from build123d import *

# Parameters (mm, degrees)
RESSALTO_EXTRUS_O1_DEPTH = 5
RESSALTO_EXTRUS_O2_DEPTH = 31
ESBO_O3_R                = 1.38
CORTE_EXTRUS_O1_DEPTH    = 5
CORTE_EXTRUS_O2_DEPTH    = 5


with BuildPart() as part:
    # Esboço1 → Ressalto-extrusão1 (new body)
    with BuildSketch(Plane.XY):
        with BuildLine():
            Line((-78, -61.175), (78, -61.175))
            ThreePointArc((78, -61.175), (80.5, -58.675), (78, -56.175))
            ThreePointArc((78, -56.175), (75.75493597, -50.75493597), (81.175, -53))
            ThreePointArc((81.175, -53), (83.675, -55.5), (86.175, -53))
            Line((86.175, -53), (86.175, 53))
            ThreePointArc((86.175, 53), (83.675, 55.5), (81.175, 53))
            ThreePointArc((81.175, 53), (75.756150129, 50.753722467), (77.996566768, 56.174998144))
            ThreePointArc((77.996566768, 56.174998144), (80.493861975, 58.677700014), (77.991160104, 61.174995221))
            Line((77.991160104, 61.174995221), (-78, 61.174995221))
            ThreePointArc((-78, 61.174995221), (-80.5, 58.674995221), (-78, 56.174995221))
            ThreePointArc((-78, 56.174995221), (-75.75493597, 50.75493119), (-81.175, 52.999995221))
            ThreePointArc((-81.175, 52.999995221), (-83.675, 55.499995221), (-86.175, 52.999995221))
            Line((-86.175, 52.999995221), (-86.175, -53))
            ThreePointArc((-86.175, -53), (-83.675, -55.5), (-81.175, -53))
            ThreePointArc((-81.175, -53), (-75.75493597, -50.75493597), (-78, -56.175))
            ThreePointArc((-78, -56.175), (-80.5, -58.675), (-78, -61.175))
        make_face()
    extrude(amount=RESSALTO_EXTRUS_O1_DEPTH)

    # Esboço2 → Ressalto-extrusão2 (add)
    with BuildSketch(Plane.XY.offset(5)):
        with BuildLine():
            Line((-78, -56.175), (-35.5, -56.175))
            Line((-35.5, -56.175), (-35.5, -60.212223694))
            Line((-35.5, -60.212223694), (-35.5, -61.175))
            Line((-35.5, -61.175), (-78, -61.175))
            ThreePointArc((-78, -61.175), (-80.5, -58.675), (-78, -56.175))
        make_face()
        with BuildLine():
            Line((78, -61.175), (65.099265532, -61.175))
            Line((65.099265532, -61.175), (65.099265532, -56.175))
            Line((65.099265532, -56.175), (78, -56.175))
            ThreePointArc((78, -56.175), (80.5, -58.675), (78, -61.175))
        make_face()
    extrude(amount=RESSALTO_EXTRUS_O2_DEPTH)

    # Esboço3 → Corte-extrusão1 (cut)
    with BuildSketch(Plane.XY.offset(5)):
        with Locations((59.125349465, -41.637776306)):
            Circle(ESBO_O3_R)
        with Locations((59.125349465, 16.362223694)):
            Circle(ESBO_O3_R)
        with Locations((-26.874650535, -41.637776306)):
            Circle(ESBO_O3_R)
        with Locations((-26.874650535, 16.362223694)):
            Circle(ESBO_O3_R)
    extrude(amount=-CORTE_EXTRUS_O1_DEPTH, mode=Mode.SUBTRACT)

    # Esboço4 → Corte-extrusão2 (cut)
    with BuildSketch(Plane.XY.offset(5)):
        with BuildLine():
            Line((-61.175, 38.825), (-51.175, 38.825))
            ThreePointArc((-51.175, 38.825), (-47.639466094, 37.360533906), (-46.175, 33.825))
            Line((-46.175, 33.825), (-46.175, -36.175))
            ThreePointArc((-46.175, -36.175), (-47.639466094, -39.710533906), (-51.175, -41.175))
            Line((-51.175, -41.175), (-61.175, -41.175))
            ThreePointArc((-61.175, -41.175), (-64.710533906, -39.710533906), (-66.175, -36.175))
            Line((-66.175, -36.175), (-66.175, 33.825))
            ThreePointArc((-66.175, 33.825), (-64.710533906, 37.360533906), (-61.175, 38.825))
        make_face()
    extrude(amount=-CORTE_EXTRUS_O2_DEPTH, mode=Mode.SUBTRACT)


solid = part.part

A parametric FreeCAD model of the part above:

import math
import FreeCAD as App
import Part
import Sketcher
Q = App.Units.Quantity

doc = App.newDocument("Part")
params = doc.addObject("Spreadsheet::Sheet", "Params")
for row, (alias, value) in enumerate([
    ("sketch1_radius", "2.5 mm"),
    ("sketch1_width", "156 mm"),
    ("sketch1_height", "106 mm"),
    ("pad1_length", "5 mm"),
    ("sketch2_radius", "2.5 mm"),
    ("sketch2_width", "42.5 mm"),
    ("pad2_length", "31 mm"),
    ("sketch3_diameter", "2.76 mm"),
    ("pocket1_length", "5 mm"),
    ("sketch4_radius", "5 mm"),
    ("sketch4_width", "10 mm"),
    ("sketch4_height", "70 mm"),
    ("pocket2_length", "5 mm"),
], start=1):
    params.set(f"A{row}", alias)
    params.set(f"B{row}", "=" + value)
    params.setAlias(f"B{row}", alias)

body = doc.addObject("PartDesign::Body", "Body")

sketch1 = doc.addObject("Sketcher::SketchObject", "Sketch")
body.addObject(sketch1)
sketch1.AttachmentSupport = (doc.XY_Plane, [""])
sketch1.MapMode = "FlatFace"
sketch1.addGeometry([
    Part.LineSegment(App.Vector(-78, -61.2, 0), App.Vector(78, -61.2, 0)),
    Part.ArcOfCircle(Part.Circle(App.Vector(78, -58.7, 0), App.Vector(0, 0, 1), 2.5), math.radians(-90), math.radians(90)),
    Part.ArcOfCircle(Part.Circle(App.Vector(78, -53, 0), App.Vector(0, 0, 1), 3.2), math.radians(0), math.radians(270)),
    Part.ArcOfCircle(Part.Circle(App.Vector(83.7, -53, 0), App.Vector(0, 0, 1), 2.5), math.radians(180), math.radians(360)),
    Part.LineSegment(App.Vector(86.2, -53, 0), App.Vector(86.2, 53, 0)),
    Part.ArcOfCircle(Part.Circle(App.Vector(83.7, 53, 0), App.Vector(0, 0, 1), 2.5), math.radians(0), math.radians(180)),
    Part.ArcOfCircle(Part.Circle(App.Vector(78, 53, 0), App.Vector(0, 0, 1), 3.2), math.radians(90), math.radians(360)),
    Part.ArcOfCircle(Part.Circle(App.Vector(78, 58.7, 0), App.Vector(0, 0, 1), 2.5), math.radians(-90), math.radians(90)),
    Part.LineSegment(App.Vector(78, 61.2, 0), App.Vector(-78, 61.2, 0)),
    Part.ArcOfCircle(Part.Circle(App.Vector(-78, 58.7, 0), App.Vector(0, 0, 1), 2.5), math.radians(90), math.radians(270)),
    Part.ArcOfCircle(Part.Circle(App.Vector(-78, 53, 0), App.Vector(0, 0, 1), 3.2), math.radians(180), math.radians(450)),
    Part.ArcOfCircle(Part.Circle(App.Vector(-83.7, 53, 0), App.Vector(0, 0, 1), 2.5), math.radians(0), math.radians(180)),
    Part.LineSegment(App.Vector(-86.2, 53, 0), App.Vector(-86.2, -53, 0)),
    Part.ArcOfCircle(Part.Circle(App.Vector(-83.7, -53, 0), App.Vector(0, 0, 1), 2.5), math.radians(180), math.radians(360)),
    Part.ArcOfCircle(Part.Circle(App.Vector(-78, -53, 0), App.Vector(0, 0, 1), 3.2), math.radians(-90), math.radians(180)),
    Part.ArcOfCircle(Part.Circle(App.Vector(-78, -58.7, 0), App.Vector(0, 0, 1), 2.5), math.radians(90), math.radians(270)),
], False)
sketch1.addConstraint([
    Sketcher.Constraint("Tangent", 0, 2, 1, 1),
    Sketcher.Constraint("Tangent", 1, 2, 2, 2),
    Sketcher.Constraint("Tangent", 2, 1, 3, 1),
    Sketcher.Constraint("Tangent", 3, 2, 4, 1),
    Sketcher.Constraint("Tangent", 4, 2, 5, 1),
    Sketcher.Constraint("Tangent", 5, 2, 6, 2),
    Sketcher.Constraint("Tangent", 6, 1, 7, 1),
    Sketcher.Constraint("Coincident", 7, 2, 8, 1),
    Sketcher.Constraint("Tangent", 8, 2, 9, 1),
    Sketcher.Constraint("Tangent", 9, 2, 10, 2),
    Sketcher.Constraint("Tangent", 10, 1, 11, 1),
    Sketcher.Constraint("Tangent", 11, 2, 12, 1),
    Sketcher.Constraint("Tangent", 12, 2, 13, 1),
    Sketcher.Constraint("Tangent", 13, 2, 14, 2),
    Sketcher.Constraint("Tangent", 14, 1, 15, 1),
    Sketcher.Constraint("Tangent", 15, 2, 0, 1),
    Sketcher.Constraint("Horizontal", 0),
    Sketcher.Constraint("Vertical", 4),
    Sketcher.Constraint("Horizontal", 8),
    Sketcher.Constraint("Vertical", 12),
    Sketcher.Constraint("Equal", 1, 3),
    Sketcher.Constraint("Equal", 3, 5),
    Sketcher.Constraint("Equal", 2, 6),
    Sketcher.Constraint("Equal", 5, 7),
    Sketcher.Constraint("Equal", 7, 9),
    Sketcher.Constraint("Equal", 6, 10),
    Sketcher.Constraint("Equal", 9, 11),
    Sketcher.Constraint("Equal", 11, 13),
    Sketcher.Constraint("Equal", 10, 14),
    Sketcher.Constraint("Equal", 13, 15),
    Sketcher.Constraint("Symmetric", 1, 3, 9, 3, -1, 1),
    Sketcher.Constraint("Symmetric", 3, 3, 11, 3, -1, 1),
    Sketcher.Constraint("Horizontal", 2, 3, 3, 3),
    Sketcher.Constraint("Horizontal", 5, 3, 6, 3),
    Sketcher.Constraint("Horizontal", 3, 3, 13, 3),
    Sketcher.Constraint("Vertical", 1, 3, 2, 3),
    Sketcher.Constraint("Vertical", 14, 3, 15, 3),
    Sketcher.Constraint("Radius", 1, Q("2.5 mm")),
    Sketcher.Constraint("DistanceX", 0, 1, 0, 2, Q("156 mm")),
    Sketcher.Constraint("DistanceY", 4, 1, 4, 2, Q("106 mm")),
    Sketcher.Constraint("Radius", 2, Q("3.175 mm")),
    Sketcher.Constraint("DistanceX", 8, 2, 8, 1, Q("155.99116 mm")),
    Sketcher.Constraint("DistanceX", -1, 1, 7, 3, Q("77.993863 mm")),
])
sketch1.setExpression("Constraints[37]", "Params.sketch1_radius")
sketch1.setExpression("Constraints[38]", "Params.sketch1_width")
sketch1.setExpression("Constraints[39]", "Params.sketch1_height")
pad1 = doc.addObject("PartDesign::Pad", "Pad")
body.addObject(pad1)
pad1.Profile = sketch1
pad1.setExpression("Length", "Params.pad1_length")

sketch2 = doc.addObject("Sketcher::SketchObject", "Sketch001")
body.addObject(sketch2)
sketch2.AttachmentSupport = (doc.XY_Plane, [""])
sketch2.MapMode = "FlatFace"
sketch2.AttachmentOffset = App.Placement(App.Vector(0, 0, 5), App.Rotation())
sketch2.addGeometry([
    Part.LineSegment(App.Vector(-35.5, -56.2, 0), App.Vector(-78, -56.2, 0)),
    Part.ArcOfCircle(Part.Circle(App.Vector(-78, -58.7, 0), App.Vector(0, 0, 1), 2.5), math.radians(90), math.radians(270)),
    Part.LineSegment(App.Vector(-78, -61.2, 0), App.Vector(-35.5, -61.2, 0)),
    Part.LineSegment(App.Vector(-35.5, -61.2, 0), App.Vector(-35.5, -56.2, 0)),
    Part.LineSegment(App.Vector(65.1, -61.2, 0), App.Vector(78, -61.2, 0)),
    Part.ArcOfCircle(Part.Circle(App.Vector(78, -58.7, 0), App.Vector(0, 0, 1), 2.5), math.radians(-90), math.radians(90)),
    Part.LineSegment(App.Vector(78, -56.2, 0), App.Vector(65.1, -56.2, 0)),
    Part.LineSegment(App.Vector(65.1, -56.2, 0), App.Vector(65.1, -61.2, 0)),
], False)
sketch2.addConstraint([
    Sketcher.Constraint("Tangent", 0, 2, 1, 1),
    Sketcher.Constraint("Tangent", 1, 2, 2, 1),
    Sketcher.Constraint("Coincident", 2, 2, 3, 1),
    Sketcher.Constraint("Coincident", 3, 2, 0, 1),
    Sketcher.Constraint("Tangent", 4, 2, 5, 1),
    Sketcher.Constraint("Tangent", 5, 2, 6, 1),
    Sketcher.Constraint("Coincident", 6, 2, 7, 1),
    Sketcher.Constraint("Coincident", 7, 2, 4, 1),
    Sketcher.Constraint("Horizontal", 0),
    Sketcher.Constraint("Horizontal", 2),
    Sketcher.Constraint("Vertical", 3),
    Sketcher.Constraint("Horizontal", 4),
    Sketcher.Constraint("Horizontal", 6),
    Sketcher.Constraint("Vertical", 7),
    Sketcher.Constraint("Equal", 1, 5),
    Sketcher.Constraint("Symmetric", 1, 3, 5, 3, -2),
    Sketcher.Constraint("Radius", 1, Q("2.5 mm")),
    Sketcher.Constraint("DistanceX", 0, 2, 0, 1, Q("42.5 mm")),
    Sketcher.Constraint("DistanceX", 1, 3, -1, 1, Q("78 mm")),
    Sketcher.Constraint("DistanceY", 1, 3, -1, 1, Q("58.675 mm")),
    Sketcher.Constraint("DistanceX", 4, 1, 4, 2, Q("12.900734 mm")),
])
sketch2.setExpression("Constraints[16]", "Params.sketch2_radius")
sketch2.setExpression("Constraints[17]", "Params.sketch2_width")
pad2 = doc.addObject("PartDesign::Pad", "Pad001")
body.addObject(pad2)
pad2.Profile = sketch2
pad2.setExpression("Length", "Params.pad2_length")

sketch3 = doc.addObject("Sketcher::SketchObject", "Sketch002")
body.addObject(sketch3)
sketch3.AttachmentSupport = (doc.XY_Plane, [""])
sketch3.MapMode = "FlatFace"
sketch3.AttachmentOffset = App.Placement(App.Vector(0, 0, 5), App.Rotation())
sketch3.addGeometry([
    Part.Circle(App.Vector(59.1, -41.6, 0), App.Vector(0, 0, 1), 1.4),
    Part.Circle(App.Vector(59.1, 16.4, 0), App.Vector(0, 0, 1), 1.4),
    Part.Circle(App.Vector(-26.9, -41.6, 0), App.Vector(0, 0, 1), 1.4),
    Part.Circle(App.Vector(-26.9, 16.4, 0), App.Vector(0, 0, 1), 1.4),
], False)
sketch3.addConstraint([
    Sketcher.Constraint("Equal", 0, 1),
    Sketcher.Constraint("Equal", 1, 2),
    Sketcher.Constraint("Equal", 2, 3),
    Sketcher.Constraint("Horizontal", 0, 3, 2, 3),
    Sketcher.Constraint("Horizontal", 1, 3, 3, 3),
    Sketcher.Constraint("Vertical", 0, 3, 1, 3),
    Sketcher.Constraint("Vertical", 2, 3, 3, 3),
    Sketcher.Constraint("Diameter", 0, Q("2.76 mm")),
    Sketcher.Constraint("DistanceY", 0, 3, 1, 3, Q("58 mm")),
    Sketcher.Constraint("DistanceX", 2, 3, 0, 3, Q("86 mm")),
    Sketcher.Constraint("DistanceX", -1, 1, 0, 3, Q("59.125349 mm")),
    Sketcher.Constraint("DistanceY", 0, 3, -1, 1, Q("41.637776 mm")),
])
sketch3.setExpression("Constraints[7]", "Params.sketch3_diameter")
pocket1 = doc.addObject("PartDesign::Pocket", "Pocket")
body.addObject(pocket1)
pocket1.Profile = sketch3
pocket1.setExpression("Length", "Params.pocket1_length")

sketch4 = doc.addObject("Sketcher::SketchObject", "Sketch003")
body.addObject(sketch4)
sketch4.AttachmentSupport = (doc.XY_Plane, [""])
sketch4.MapMode = "FlatFace"
sketch4.AttachmentOffset = App.Placement(App.Vector(0, 0, 5), App.Rotation())
sketch4.addGeometry([
    Part.LineSegment(App.Vector(-51, 39, 0), App.Vector(-61, 39, 0)),
    Part.ArcOfCircle(Part.Circle(App.Vector(-61, 34, 0), App.Vector(0, 0, 1), 5), math.radians(90), math.radians(180)),
    Part.LineSegment(App.Vector(-66, 34, 0), App.Vector(-66, -36, 0)),
    Part.ArcOfCircle(Part.Circle(App.Vector(-61, -36, 0), App.Vector(0, 0, 1), 5), math.radians(180), math.radians(270)),
    Part.LineSegment(App.Vector(-61, -41, 0), App.Vector(-51, -41, 0)),
    Part.ArcOfCircle(Part.Circle(App.Vector(-51, -36, 0), App.Vector(0, 0, 1), 5), math.radians(-90), math.radians(0)),
    Part.LineSegment(App.Vector(-46, -36, 0), App.Vector(-46, 34, 0)),
    Part.ArcOfCircle(Part.Circle(App.Vector(-51, 34, 0), App.Vector(0, 0, 1), 5), math.radians(0), math.radians(90)),
], False)
sketch4.addConstraint([
    Sketcher.Constraint("Tangent", 0, 2, 1, 1),
    Sketcher.Constraint("Tangent", 1, 2, 2, 1),
    Sketcher.Constraint("Tangent", 2, 2, 3, 1),
    Sketcher.Constraint("Tangent", 3, 2, 4, 1),
    Sketcher.Constraint("Tangent", 4, 2, 5, 1),
    Sketcher.Constraint("Tangent", 5, 2, 6, 1),
    Sketcher.Constraint("Tangent", 6, 2, 7, 1),
    Sketcher.Constraint("Tangent", 7, 2, 0, 1),
    Sketcher.Constraint("Horizontal", 0),
    Sketcher.Constraint("Vertical", 2),
    Sketcher.Constraint("Horizontal", 4),
    Sketcher.Constraint("Vertical", 6),
    Sketcher.Constraint("Equal", 1, 3),
    Sketcher.Constraint("Equal", 3, 5),
    Sketcher.Constraint("Equal", 5, 7),
    Sketcher.Constraint("Radius", 1, Q("5 mm")),
    Sketcher.Constraint("DistanceX", 0, 2, 0, 1, Q("10 mm")),
    Sketcher.Constraint("DistanceY", 2, 2, 2, 1, Q("70 mm")),
    Sketcher.Constraint("DistanceX", 1, 3, -1, 1, Q("61.175 mm")),
    Sketcher.Constraint("DistanceY", -1, 1, 1, 3, Q("33.825 mm")),
])
sketch4.setExpression("Constraints[15]", "Params.sketch4_radius")
sketch4.setExpression("Constraints[16]", "Params.sketch4_width")
sketch4.setExpression("Constraints[17]", "Params.sketch4_height")
pocket2 = doc.addObject("PartDesign::Pocket", "Pocket001")
body.addObject(pocket2)
pocket2.Profile = sketch4
pocket2.setExpression("Length", "Params.pocket2_length")

doc.recompute()
